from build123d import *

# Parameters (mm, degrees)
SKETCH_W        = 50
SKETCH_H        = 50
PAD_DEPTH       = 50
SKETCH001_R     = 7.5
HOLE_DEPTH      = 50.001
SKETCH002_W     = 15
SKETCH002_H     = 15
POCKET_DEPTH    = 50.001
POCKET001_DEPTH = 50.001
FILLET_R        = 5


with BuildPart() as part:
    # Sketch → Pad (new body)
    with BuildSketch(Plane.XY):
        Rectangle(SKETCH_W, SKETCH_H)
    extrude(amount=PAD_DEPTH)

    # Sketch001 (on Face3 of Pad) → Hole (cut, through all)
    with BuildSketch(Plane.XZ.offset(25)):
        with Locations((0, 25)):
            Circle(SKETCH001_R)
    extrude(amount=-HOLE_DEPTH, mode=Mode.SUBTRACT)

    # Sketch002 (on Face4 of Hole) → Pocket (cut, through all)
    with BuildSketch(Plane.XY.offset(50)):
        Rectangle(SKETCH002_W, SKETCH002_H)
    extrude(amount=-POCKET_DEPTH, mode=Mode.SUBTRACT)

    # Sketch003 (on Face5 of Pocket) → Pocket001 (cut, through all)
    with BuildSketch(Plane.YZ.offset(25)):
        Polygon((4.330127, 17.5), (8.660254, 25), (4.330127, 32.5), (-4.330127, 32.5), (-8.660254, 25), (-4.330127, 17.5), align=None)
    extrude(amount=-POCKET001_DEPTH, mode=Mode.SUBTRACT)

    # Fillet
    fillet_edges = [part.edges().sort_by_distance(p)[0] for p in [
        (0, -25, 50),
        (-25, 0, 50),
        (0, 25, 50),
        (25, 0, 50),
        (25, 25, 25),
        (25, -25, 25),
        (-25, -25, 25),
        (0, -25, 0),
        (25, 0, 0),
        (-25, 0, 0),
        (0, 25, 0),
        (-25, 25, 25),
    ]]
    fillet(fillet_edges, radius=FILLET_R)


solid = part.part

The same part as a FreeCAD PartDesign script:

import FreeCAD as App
import Part
import Sketcher
Q = App.Units.Quantity


def edges_at(feature, points):
    """Names of the edges that pass closest to the given points."""
    edges = feature.Shape.Edges
    near = lambda p: min(range(len(edges)), key=lambda i: edges[i].distToShape(Part.Vertex(*p))[0])
    return sorted({f"Edge{near(p) + 1}" for p in points})


def add_polygon(sketch, points):
    """Adds a closed chain of lines whose ends are joined by coincident constraints."""
    first, n = sketch.GeometryCount, len(points)
    for a, b in zip(points, points[1:] + points[:1]):
        sketch.addGeometry(Part.LineSegment(App.Vector(*a, 0), App.Vector(*b, 0)), False)
    for i in range(n):
        sketch.addConstraint(Sketcher.Constraint("Coincident", first + i, 2, first + (i + 1) % n, 1))

doc = App.newDocument("Part")
body = doc.addObject("PartDesign::Body", "Body")

# Sketch on XY plane
sketch1 = body.newObject("Sketcher::SketchObject", "Sketch")
sketch1.AttachmentSupport = (doc.getObject("XY_Plane"), [""])
sketch1.MapMode = "FlatFace"
add_polygon(sketch1, [(-25, 25), (-25, -25), (25, -25), (25, 25)])  # lines 0-3
sketch1.addConstraint(Sketcher.Constraint("Vertical", 0))
sketch1.addConstraint(Sketcher.Constraint("Horizontal", 1))
sketch1.addConstraint(Sketcher.Constraint("Vertical", 2))
sketch1.addConstraint(Sketcher.Constraint("Horizontal", 3))
sketch1.addConstraint(Sketcher.Constraint("Symmetric", 0, 2, 2, 2, -1, 1))
sketch1.addConstraint(Sketcher.Constraint("Equal", 3, 0))
sketch1.addConstraint(Sketcher.Constraint("DistanceX", 1, 1, 1, 2, Q("50 mm")))
pad1 = body.newObject("PartDesign::Pad", "Pad")
pad1.Profile = sketch1
pad1.Length = 50

# Sketch on XZ plane
sketch2 = body.newObject("Sketcher::SketchObject", "Sketch001")
sketch2.AttachmentSupport = (doc.getObject("XZ_Plane"), [""])
sketch2.MapMode = "FlatFace"
sketch2.AttachmentOffset = App.Placement(App.Vector(0, 0, 25), App.Rotation())
sketch2.addGeometry(Part.Circle(App.Vector(0, 25, 0), App.Vector(0, 0, 1), 8), False)
sketch2.addConstraint(Sketcher.Constraint("PointOnObject", 0, 3, -2))
sketch2.addConstraint(Sketcher.Constraint("Diameter", 0, Q("15 mm")))
sketch2.addConstraint(Sketcher.Constraint("DistanceY", -1, 1, 0, 3, Q("25 mm")))
pocket1 = body.newObject("PartDesign::Pocket", "Pocket")
pocket1.Profile = sketch2
pocket1.Type = "ThroughAll"

# Sketch on XY plane
sketch3 = body.newObject("Sketcher::SketchObject", "Sketch002")
sketch3.AttachmentSupport = (doc.getObject("XY_Plane"), [""])
sketch3.MapMode = "FlatFace"
sketch3.AttachmentOffset = App.Placement(App.Vector(0, 0, 50), App.Rotation())
add_polygon(sketch3, [(-8, 8), (-8, -8), (8, -8), (8, 8)])  # lines 0-3
sketch3.addConstraint(Sketcher.Constraint("Vertical", 0))
sketch3.addConstraint(Sketcher.Constraint("Horizontal", 1))
sketch3.addConstraint(Sketcher.Constraint("Vertical", 2))
sketch3.addConstraint(Sketcher.Constraint("Horizontal", 3))
sketch3.addConstraint(Sketcher.Constraint("Symmetric", 0, 2, 2, 2, -1, 1))
sketch3.addConstraint(Sketcher.Constraint("Equal", 3, 0))
sketch3.addConstraint(Sketcher.Constraint("DistanceX", 1, 1, 1, 2, Q("15 mm")))
pocket2 = body.newObject("PartDesign::Pocket", "Pocket001")
pocket2.Profile = sketch3
pocket2.Type = "ThroughAll"

# Sketch on YZ plane
sketch4 = body.newObject("Sketcher::SketchObject", "Sketch003")
sketch4.AttachmentSupport = (doc.getObject("YZ_Plane"), [""])
sketch4.MapMode = "FlatFace"
sketch4.AttachmentOffset = App.Placement(App.Vector(0, 0, 25), App.Rotation())
add_polygon(sketch4, [(4, 18), (9, 25), (4, 32), (-4, 32), (-9, 25), (-4, 18)])  # lines 0-5
sketch4.addConstraint(Sketcher.Constraint("Horizontal", 2))
sketch4.addConstraint(Sketcher.Constraint("Horizontal", 5))
sketch4.addConstraint(Sketcher.Constraint("Symmetric", 0, 2, 3, 2, -2))
sketch4.addConstraint(Sketcher.Constraint("Parallel", 0, 3))
sketch4.addConstraint(Sketcher.Constraint("Parallel", 1, 4))
sketch4.addConstraint(Sketcher.Constraint("Vertical", 2, 2, 4, 2))
sketch4.addConstraint(Sketcher.Constraint("Vertical", 1, 2, 5, 2))
sketch4.addConstraint(Sketcher.Constraint("Angle", 0, Q("60 deg")))
sketch4.addConstraint(Sketcher.Constraint("DistanceY", -1, 1, 0, 2, Q("25 mm")))
sketch4.addConstraint(Sketcher.Constraint("DistanceY", 4, 2, 2, 2, Q("15 mm")))
sketch4.addConstraint(Sketcher.Constraint("DistanceX", 2, 2, 2, 1, Q("8.660254 mm")))
pocket3 = body.newObject("PartDesign::Pocket", "Pocket002")
pocket3.Profile = sketch4
pocket3.Type = "ThroughAll"
doc.recompute()

fillet = body.newObject("PartDesign::Fillet", "Fillet")
fillet.Base = (pocket3, edges_at(pocket3, [
    (0, -25, 50),
    (-25, 0, 50),
    (0, 25, 50),
    (25, 0, 50),
    (25, 25, 25),
    (25, -25, 25),
    (-25, -25, 25),
    (0, -25, 0),
    (25, 0, 0),
    (-25, 0, 0),
    (0, 25, 0),
    (-25, 25, 25),
]))
fillet.Radius = 5

doc.recompute()
